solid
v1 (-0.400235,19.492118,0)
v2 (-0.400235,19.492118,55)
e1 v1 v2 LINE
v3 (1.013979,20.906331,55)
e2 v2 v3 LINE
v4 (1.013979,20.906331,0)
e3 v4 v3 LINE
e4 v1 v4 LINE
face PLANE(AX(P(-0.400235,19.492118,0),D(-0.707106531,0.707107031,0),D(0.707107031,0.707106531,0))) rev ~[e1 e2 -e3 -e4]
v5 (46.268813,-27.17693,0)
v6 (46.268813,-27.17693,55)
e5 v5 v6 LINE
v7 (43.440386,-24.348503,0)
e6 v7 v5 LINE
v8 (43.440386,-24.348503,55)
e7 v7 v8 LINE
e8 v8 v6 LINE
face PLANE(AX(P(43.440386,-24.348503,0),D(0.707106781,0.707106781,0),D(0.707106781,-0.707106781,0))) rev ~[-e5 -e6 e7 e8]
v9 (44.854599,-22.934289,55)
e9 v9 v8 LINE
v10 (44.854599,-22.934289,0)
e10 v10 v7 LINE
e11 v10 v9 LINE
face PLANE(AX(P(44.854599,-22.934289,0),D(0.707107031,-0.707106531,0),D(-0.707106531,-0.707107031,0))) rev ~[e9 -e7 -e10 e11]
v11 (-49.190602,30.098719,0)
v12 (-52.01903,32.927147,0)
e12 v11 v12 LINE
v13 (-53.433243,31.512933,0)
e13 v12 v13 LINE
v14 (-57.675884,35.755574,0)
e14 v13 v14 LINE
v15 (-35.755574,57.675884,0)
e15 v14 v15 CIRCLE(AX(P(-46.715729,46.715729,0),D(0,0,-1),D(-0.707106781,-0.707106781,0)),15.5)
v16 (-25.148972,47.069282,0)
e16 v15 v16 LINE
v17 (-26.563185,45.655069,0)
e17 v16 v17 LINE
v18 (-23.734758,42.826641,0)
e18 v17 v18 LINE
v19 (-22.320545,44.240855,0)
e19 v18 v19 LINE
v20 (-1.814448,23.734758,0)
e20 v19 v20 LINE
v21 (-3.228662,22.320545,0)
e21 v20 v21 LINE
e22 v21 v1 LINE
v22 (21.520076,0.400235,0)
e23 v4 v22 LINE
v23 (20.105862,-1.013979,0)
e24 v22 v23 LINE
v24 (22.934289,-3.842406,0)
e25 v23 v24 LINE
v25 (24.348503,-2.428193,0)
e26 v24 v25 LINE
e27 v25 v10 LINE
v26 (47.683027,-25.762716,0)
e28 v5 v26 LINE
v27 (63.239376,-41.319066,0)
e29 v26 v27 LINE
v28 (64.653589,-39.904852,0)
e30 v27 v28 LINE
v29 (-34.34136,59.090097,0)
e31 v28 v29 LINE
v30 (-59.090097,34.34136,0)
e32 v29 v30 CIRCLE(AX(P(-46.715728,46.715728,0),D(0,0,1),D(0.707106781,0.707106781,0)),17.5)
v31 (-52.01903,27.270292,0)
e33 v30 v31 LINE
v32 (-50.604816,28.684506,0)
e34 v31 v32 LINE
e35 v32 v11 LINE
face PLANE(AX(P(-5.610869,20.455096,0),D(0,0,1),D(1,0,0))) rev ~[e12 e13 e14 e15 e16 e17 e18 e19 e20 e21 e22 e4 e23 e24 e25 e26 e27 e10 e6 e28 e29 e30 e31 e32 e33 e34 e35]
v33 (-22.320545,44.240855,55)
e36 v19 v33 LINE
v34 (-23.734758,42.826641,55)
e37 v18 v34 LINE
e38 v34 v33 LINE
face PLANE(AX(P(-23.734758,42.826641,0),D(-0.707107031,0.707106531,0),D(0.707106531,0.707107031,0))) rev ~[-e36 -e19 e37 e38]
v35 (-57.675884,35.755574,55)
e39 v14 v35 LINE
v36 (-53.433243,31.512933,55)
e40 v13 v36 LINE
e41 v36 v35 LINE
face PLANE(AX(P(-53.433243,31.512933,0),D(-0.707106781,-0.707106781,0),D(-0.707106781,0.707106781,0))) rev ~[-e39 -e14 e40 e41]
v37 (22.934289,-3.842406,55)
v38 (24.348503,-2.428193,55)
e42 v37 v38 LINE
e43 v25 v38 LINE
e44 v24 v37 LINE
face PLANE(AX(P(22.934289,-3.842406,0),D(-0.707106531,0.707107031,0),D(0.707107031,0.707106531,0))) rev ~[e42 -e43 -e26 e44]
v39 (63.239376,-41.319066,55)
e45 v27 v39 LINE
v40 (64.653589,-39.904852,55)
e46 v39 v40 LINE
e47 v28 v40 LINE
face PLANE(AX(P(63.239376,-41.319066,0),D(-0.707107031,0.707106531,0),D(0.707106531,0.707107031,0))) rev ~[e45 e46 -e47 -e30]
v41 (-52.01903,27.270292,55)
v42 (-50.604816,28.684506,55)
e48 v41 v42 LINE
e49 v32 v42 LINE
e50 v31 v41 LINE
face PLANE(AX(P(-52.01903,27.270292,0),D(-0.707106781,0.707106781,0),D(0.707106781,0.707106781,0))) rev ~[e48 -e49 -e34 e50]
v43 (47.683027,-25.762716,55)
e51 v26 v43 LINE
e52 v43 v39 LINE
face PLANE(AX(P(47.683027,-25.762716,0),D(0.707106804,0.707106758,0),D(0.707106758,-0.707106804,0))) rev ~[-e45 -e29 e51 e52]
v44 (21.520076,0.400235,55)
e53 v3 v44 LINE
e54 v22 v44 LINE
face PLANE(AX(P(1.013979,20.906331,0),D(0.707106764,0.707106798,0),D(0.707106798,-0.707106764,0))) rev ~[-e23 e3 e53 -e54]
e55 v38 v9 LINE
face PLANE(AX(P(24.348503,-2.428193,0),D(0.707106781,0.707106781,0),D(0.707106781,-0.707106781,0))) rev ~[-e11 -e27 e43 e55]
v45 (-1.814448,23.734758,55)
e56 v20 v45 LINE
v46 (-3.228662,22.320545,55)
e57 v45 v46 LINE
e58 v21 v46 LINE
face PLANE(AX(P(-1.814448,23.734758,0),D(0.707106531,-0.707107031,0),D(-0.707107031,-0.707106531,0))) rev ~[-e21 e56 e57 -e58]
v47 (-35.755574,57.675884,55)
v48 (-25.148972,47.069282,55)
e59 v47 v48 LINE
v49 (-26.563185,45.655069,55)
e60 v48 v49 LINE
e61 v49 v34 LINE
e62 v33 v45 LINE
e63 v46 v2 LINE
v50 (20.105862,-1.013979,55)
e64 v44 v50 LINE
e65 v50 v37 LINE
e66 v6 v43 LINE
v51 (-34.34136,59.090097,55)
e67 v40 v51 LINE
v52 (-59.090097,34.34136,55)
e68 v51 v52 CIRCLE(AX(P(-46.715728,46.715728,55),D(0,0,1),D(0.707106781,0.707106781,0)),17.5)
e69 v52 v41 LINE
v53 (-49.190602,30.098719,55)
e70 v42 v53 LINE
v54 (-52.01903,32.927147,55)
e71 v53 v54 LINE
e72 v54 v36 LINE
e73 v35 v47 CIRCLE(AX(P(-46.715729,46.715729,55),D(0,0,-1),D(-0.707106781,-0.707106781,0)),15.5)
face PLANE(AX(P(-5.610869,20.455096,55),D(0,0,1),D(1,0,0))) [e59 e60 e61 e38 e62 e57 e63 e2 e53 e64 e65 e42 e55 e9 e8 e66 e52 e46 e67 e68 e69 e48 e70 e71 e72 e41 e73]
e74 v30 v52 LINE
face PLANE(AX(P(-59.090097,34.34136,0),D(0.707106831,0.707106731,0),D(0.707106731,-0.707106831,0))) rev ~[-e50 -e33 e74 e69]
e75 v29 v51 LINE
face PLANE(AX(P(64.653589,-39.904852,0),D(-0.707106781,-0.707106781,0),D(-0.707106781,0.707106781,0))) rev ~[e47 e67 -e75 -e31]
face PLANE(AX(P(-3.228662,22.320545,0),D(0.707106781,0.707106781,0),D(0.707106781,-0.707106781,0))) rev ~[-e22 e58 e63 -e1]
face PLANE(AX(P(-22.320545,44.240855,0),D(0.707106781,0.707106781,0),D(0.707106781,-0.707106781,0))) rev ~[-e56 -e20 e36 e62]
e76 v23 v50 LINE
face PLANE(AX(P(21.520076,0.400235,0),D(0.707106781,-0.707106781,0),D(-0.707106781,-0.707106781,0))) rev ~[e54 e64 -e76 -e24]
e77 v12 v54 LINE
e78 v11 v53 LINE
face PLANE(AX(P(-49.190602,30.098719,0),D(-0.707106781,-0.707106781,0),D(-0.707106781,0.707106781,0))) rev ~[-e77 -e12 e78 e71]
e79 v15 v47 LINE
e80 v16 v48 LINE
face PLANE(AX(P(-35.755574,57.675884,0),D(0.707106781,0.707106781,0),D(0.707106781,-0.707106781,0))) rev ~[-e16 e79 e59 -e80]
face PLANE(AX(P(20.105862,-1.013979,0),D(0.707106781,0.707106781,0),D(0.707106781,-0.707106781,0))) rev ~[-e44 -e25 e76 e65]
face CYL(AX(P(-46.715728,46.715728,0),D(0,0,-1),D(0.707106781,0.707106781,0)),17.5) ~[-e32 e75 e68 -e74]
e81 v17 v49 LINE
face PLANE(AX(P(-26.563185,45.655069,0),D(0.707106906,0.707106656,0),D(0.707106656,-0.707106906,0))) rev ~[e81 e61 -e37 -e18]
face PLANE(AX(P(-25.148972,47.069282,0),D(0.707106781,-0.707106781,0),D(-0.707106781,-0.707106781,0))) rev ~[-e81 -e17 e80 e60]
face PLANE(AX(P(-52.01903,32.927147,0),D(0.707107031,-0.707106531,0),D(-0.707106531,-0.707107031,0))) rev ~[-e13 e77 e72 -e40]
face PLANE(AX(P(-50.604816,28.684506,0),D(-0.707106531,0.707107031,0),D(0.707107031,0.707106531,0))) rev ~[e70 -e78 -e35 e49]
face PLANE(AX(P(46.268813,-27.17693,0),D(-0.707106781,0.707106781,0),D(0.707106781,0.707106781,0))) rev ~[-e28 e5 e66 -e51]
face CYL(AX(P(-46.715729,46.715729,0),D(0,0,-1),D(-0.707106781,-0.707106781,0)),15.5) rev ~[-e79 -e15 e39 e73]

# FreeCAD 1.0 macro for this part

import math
import FreeCAD as App
import Part
import Sketcher
from FreeCAD import Vector
Q = App.Units.Quantity

doc = App.newDocument("Part")
params = doc.addObject("Spreadsheet::Sheet", "Params")
for row, (alias, value) in enumerate([
    ("sketch1_radius", "17.5 mm"),
    ("sketch1_radius2", "15.5 mm"),
    ("sketch1_length", "139.999999 mm"),
    ("sketch1_length2", "10 mm"),
    ("sketch1_length3", "15 mm"),
    ("pad1_length", "55 mm"),
], start=1):
    params.set(f"A{row}", alias)
    params.set(f"B{row}", "=" + value)
    params.setAlias(f"B{row}", alias)

body = doc.addObject("PartDesign::Body", "Body")

sketch1 = body.newObject("Sketcher::SketchObject", "Sketch")
sketch1.AttachmentSupport = (doc.getObject("XY_Plane"), [""])
sketch1.MapMode = "FlatFace"
sketch1.addGeometry(Part.LineSegment(Vector(63.239376, -41.319066, 0), Vector(64.653589, -39.904852, 0)), False)
sketch1.addGeometry(Part.LineSegment(Vector(64.653589, -39.904852, 0), Vector(-34.34136, 59.090097, 0)), False)
sketch1.addGeometry(Part.ArcOfCircle(Part.Circle(Vector(-46.715728, 46.715728, 0), Vector(0, 0, 1), 17.5), math.radians(45), math.radians(225)), False)
sketch1.addGeometry(Part.LineSegment(Vector(-59.090097, 34.34136, 0), Vector(-52.01903, 27.270292, 0)), False)
sketch1.addGeometry(Part.LineSegment(Vector(-52.01903, 27.270292, 0), Vector(-50.604816, 28.684506, 0)), False)
sketch1.addGeometry(Part.LineSegment(Vector(-50.604816, 28.684506, 0), Vector(-49.190602, 30.098719, 0)), False)
sketch1.addGeometry(Part.LineSegment(Vector(-49.190602, 30.098719, 0), Vector(-52.01903, 32.927147, 0)), False)
sketch1.addGeometry(Part.LineSegment(Vector(-52.01903, 32.927147, 0), Vector(-53.433243, 31.512933, 0)), False)
sketch1.addGeometry(Part.LineSegment(Vector(-53.433243, 31.512933, 0), Vector(-57.675884, 35.755574, 0)), False)
sketch1.addGeometry(Part.ArcOfCircle(Part.Circle(Vector(-46.715729, 46.715729, 0), Vector(0, 0, 1), 15.5), math.radians(45), math.radians(225)), False)
sketch1.addGeometry(Part.LineSegment(Vector(-35.755574, 57.675884, 0), Vector(-25.148972, 47.069282, 0)), False)
sketch1.addGeometry(Part.LineSegment(Vector(-25.148972, 47.069282, 0), Vector(-26.563185, 45.655069, 0)), False)
sketch1.addGeometry(Part.LineSegment(Vector(-26.563185, 45.655069, 0), Vector(-23.734758, 42.826641, 0)), False)
sketch1.addGeometry(Part.LineSegment(Vector(-23.734758, 42.826641, 0), Vector(-22.320545, 44.240855, 0)), False)
sketch1.addGeometry(Part.LineSegment(Vector(-22.320545, 44.240855, 0), Vector(-1.814448, 23.734758, 0)), False)
sketch1.addGeometry(Part.LineSegment(Vector(-1.814448, 23.734758, 0), Vector(-3.228662, 22.320545, 0)), False)
sketch1.addGeometry(Part.LineSegment(Vector(-3.228662, 22.320545, 0), Vector(-0.400235, 19.492118, 0)), False)
sketch1.addGeometry(Part.LineSegment(Vector(-0.400235, 19.492118, 0), Vector(1.013979, 20.906331, 0)), False)
sketch1.addGeometry(Part.LineSegment(Vector(1.013979, 20.906331, 0), Vector(21.520076, 0.400235, 0)), False)
sketch1.addGeometry(Part.LineSegment(Vector(21.520076, 0.400235, 0), Vector(20.105862, -1.013979, 0)), False)
sketch1.addGeometry(Part.LineSegment(Vector(20.105862, -1.013979, 0), Vector(22.934289, -3.842406, 0)), False)
sketch1.addGeometry(Part.LineSegment(Vector(22.934289, -3.842406, 0), Vector(24.348503, -2.428193, 0)), False)
sketch1.addGeometry(Part.LineSegment(Vector(24.348503, -2.428193, 0), Vector(44.854599, -22.934289, 0)), False)
sketch1.addGeometry(Part.LineSegment(Vector(44.854599, -22.934289, 0), Vector(43.440386, -24.348503, 0)), False)
sketch1.addGeometry(Part.LineSegment(Vector(43.440386, -24.348503, 0), Vector(46.268813, -27.17693, 0)), False)
sketch1.addGeometry(Part.LineSegment(Vector(46.268813, -27.17693, 0), Vector(47.683027, -25.762716, 0)), False)
sketch1.addGeometry(Part.LineSegment(Vector(47.683027, -25.762716, 0), Vector(63.239376, -41.319066, 0)), False)
sketch1.addConstraint(Sketcher.Constraint("Coincident", 0, 2, 1, 1))
sketch1.addConstraint(Sketcher.Constraint("Tangent", 1, 2, 2, 1))
sketch1.addConstraint(Sketcher.Constraint("Tangent", 2, 2, 3, 1))
sketch1.addConstraint(Sketcher.Constraint("Coincident", 3, 2, 4, 1))
sketch1.addConstraint(Sketcher.Constraint("Coincident", 4, 2, 5, 1))
sketch1.addConstraint(Sketcher.Constraint("Coincident", 5, 2, 6, 1))
sketch1.addConstraint(Sketcher.Constraint("Coincident", 6, 2, 7, 1))
sketch1.addConstraint(Sketcher.Constraint("Coincident", 7, 2, 8, 1))
sketch1.addConstraint(Sketcher.Constraint("Tangent", 8, 2, 9, 2))
sketch1.addConstraint(Sketcher.Constraint("Tangent", 9, 1, 10, 1))
sketch1.addConstraint(Sketcher.Constraint("Coincident", 10, 2, 11, 1))
sketch1.addConstraint(Sketcher.Constraint("Coincident", 11, 2, 12, 1))
sketch1.addConstraint(Sketcher.Constraint("Coincident", 12, 2, 13, 1))
sketch1.addConstraint(Sketcher.Constraint("Coincident", 13, 2, 14, 1))
sketch1.addConstraint(Sketcher.Constraint("Coincident", 14, 2, 15, 1))
sketch1.addConstraint(Sketcher.Constraint("Coincident", 15, 2, 16, 1))
sketch1.addConstraint(Sketcher.Constraint("Coincident", 16, 2, 17, 1))
sketch1.addConstraint(Sketcher.Constraint("Coincident", 17, 2, 18, 1))
sketch1.addConstraint(Sketcher.Constraint("Coincident", 18, 2, 19, 1))
sketch1.addConstraint(Sketcher.Constraint("Coincident", 19, 2, 20, 1))
sketch1.addConstraint(Sketcher.Constraint("Coincident", 20, 2, 21, 1))
sketch1.addConstraint(Sketcher.Constraint("Coincident", 21, 2, 22, 1))
sketch1.addConstraint(Sketcher.Constraint("Coincident", 22, 2, 23, 1))
sketch1.addConstraint(Sketcher.Constraint("Coincident", 23, 2, 24, 1))
sketch1.addConstraint(Sketcher.Constraint("Coincident", 24, 2, 25, 1))
sketch1.addConstraint(Sketcher.Constraint("Coincident", 25, 2, 26, 1))
sketch1.addConstraint(Sketcher.Constraint("Coincident", 26, 2, 0, 1))
sketch1.addConstraint(Sketcher.Constraint("Coincident", 9, 3, 2, 3))
sketch1.addConstraint(Sketcher.Constraint("Perpendicular", 0, 1))
sketch1.addConstraint(Sketcher.Constraint("Parallel", 1, 3))
sketch1.addConstraint(Sketcher.Constraint("Perpendicular", 3, 4))
sketch1.addConstraint(Sketcher.Constraint("Parallel", 4, 5))
sketch1.addConstraint(Sketcher.Constraint("Perpendicular", 5, 6))
sketch1.addConstraint(Sketcher.Constraint("Perpendicular", 6, 7))
sketch1.addConstraint(Sketcher.Constraint("Perpendicular", 7, 8))
sketch1.addConstraint(Sketcher.Constraint("Parallel", 8, 10))
sketch1.addConstraint(Sketcher.Constraint("Perpendicular", 10, 11))
sketch1.addConstraint(Sketcher.Constraint("Perpendicular", 11, 12))
sketch1.addConstraint(Sketcher.Constraint("Perpendicular", 12, 13))
sketch1.addConstraint(Sketcher.Constraint("Perpendicular", 13, 14))
sketch1.addConstraint(Sketcher.Constraint("Perpendicular", 14, 15))
sketch1.addConstraint(Sketcher.Constraint("Perpendicular", 15, 16))
sketch1.addConstraint(Sketcher.Constraint("Perpendicular", 16, 17))
sketch1.addConstraint(Sketcher.Constraint("Perpendicular", 17, 18))
sketch1.addConstraint(Sketcher.Constraint("Perpendicular", 18, 19))
sketch1.addConstraint(Sketcher.Constraint("Perpendicular", 19, 20))
sketch1.addConstraint(Sketcher.Constraint("Perpendicular", 20, 21))
sketch1.addConstraint(Sketcher.Constraint("Perpendicular", 21, 22))
sketch1.addConstraint(Sketcher.Constraint("Perpendicular", 22, 23))
sketch1.addConstraint(Sketcher.Constraint("Perpendicular", 23, 24))
sketch1.addConstraint(Sketcher.Constraint("Perpendicular", 24, 25))
sketch1.addConstraint(Sketcher.Constraint("Perpendicular", 25, 26))
sketch1.addConstraint(Sketcher.Constraint("Vertical", 3, 2, 6, 2))
sketch1.addConstraint(Sketcher.Constraint("Equal", 0, 4))
sketch1.addConstraint(Sketcher.Constraint("Equal", 4, 5))
sketch1.addConstraint(Sketcher.Constraint("Equal", 5, 7))
sketch1.addConstraint(Sketcher.Constraint("Equal", 7, 11))
sketch1.addConstraint(Sketcher.Constraint("Equal", 6, 12))
sketch1.addConstraint(Sketcher.Constraint("Equal", 11, 13))
sketch1.addConstraint(Sketcher.Constraint("Equal", 13, 15))
sketch1.addConstraint(Sketcher.Constraint("Equal", 12, 16))
sketch1.addConstraint(Sketcher.Constraint("Equal", 15, 17))
sketch1.addConstraint(Sketcher.Constraint("Equal", 14, 18))
sketch1.addConstraint(Sketcher.Constraint("Equal", 17, 19))
sketch1.addConstraint(Sketcher.Constraint("Equal", 16, 20))
sketch1.addConstraint(Sketcher.Constraint("Equal", 19, 21))
sketch1.addConstraint(Sketcher.Constraint("Equal", 18, 22))
sketch1.addConstraint(Sketcher.Constraint("Equal", 21, 23))
sketch1.addConstraint(Sketcher.Constraint("Equal", 20, 24))
sketch1.addConstraint(Sketcher.Constraint("Radius", 2, Q("17.5 mm")))
sketch1.addConstraint(Sketcher.Constraint("Radius", 9, Q("15.5 mm")))
sketch1.addConstraint(Sketcher.Constraint("Angle", 1, Q("135 deg")))
sketch1.addConstraint(Sketcher.Constraint("Distance", 1, Q("139.999999 mm")))
sketch1.addConstraint(Sketcher.Constraint("Distance", 3, Q("10 mm")))
sketch1.addConstraint(Sketcher.Constraint("Distance", 10, Q("15 mm")))
sketch1.addConstraint(Sketcher.Constraint("Distance", 14, Q("29 mm")))
sketch1.addConstraint(Sketcher.Constraint("DistanceX", 5, 2, -1, 1, Q("49.190602 mm")))
sketch1.addConstraint(Sketcher.Constraint("DistanceY", -1, 1, 2, 3, Q("46.715728 mm")))
sketch1.setExpression("Constraints[69]", "Params.sketch1_radius")
sketch1.setExpression("Constraints[70]", "Params.sketch1_radius2")
sketch1.setExpression("Constraints[72]", "Params.sketch1_length")
sketch1.setExpression("Constraints[73]", "Params.sketch1_length2")
sketch1.setExpression("Constraints[74]", "Params.sketch1_length3")
pad1 = body.newObject("PartDesign::Pad", "Pad")
pad1.Profile = sketch1
pad1.setExpression("Length", "Params.pad1_length")

doc.recompute()
